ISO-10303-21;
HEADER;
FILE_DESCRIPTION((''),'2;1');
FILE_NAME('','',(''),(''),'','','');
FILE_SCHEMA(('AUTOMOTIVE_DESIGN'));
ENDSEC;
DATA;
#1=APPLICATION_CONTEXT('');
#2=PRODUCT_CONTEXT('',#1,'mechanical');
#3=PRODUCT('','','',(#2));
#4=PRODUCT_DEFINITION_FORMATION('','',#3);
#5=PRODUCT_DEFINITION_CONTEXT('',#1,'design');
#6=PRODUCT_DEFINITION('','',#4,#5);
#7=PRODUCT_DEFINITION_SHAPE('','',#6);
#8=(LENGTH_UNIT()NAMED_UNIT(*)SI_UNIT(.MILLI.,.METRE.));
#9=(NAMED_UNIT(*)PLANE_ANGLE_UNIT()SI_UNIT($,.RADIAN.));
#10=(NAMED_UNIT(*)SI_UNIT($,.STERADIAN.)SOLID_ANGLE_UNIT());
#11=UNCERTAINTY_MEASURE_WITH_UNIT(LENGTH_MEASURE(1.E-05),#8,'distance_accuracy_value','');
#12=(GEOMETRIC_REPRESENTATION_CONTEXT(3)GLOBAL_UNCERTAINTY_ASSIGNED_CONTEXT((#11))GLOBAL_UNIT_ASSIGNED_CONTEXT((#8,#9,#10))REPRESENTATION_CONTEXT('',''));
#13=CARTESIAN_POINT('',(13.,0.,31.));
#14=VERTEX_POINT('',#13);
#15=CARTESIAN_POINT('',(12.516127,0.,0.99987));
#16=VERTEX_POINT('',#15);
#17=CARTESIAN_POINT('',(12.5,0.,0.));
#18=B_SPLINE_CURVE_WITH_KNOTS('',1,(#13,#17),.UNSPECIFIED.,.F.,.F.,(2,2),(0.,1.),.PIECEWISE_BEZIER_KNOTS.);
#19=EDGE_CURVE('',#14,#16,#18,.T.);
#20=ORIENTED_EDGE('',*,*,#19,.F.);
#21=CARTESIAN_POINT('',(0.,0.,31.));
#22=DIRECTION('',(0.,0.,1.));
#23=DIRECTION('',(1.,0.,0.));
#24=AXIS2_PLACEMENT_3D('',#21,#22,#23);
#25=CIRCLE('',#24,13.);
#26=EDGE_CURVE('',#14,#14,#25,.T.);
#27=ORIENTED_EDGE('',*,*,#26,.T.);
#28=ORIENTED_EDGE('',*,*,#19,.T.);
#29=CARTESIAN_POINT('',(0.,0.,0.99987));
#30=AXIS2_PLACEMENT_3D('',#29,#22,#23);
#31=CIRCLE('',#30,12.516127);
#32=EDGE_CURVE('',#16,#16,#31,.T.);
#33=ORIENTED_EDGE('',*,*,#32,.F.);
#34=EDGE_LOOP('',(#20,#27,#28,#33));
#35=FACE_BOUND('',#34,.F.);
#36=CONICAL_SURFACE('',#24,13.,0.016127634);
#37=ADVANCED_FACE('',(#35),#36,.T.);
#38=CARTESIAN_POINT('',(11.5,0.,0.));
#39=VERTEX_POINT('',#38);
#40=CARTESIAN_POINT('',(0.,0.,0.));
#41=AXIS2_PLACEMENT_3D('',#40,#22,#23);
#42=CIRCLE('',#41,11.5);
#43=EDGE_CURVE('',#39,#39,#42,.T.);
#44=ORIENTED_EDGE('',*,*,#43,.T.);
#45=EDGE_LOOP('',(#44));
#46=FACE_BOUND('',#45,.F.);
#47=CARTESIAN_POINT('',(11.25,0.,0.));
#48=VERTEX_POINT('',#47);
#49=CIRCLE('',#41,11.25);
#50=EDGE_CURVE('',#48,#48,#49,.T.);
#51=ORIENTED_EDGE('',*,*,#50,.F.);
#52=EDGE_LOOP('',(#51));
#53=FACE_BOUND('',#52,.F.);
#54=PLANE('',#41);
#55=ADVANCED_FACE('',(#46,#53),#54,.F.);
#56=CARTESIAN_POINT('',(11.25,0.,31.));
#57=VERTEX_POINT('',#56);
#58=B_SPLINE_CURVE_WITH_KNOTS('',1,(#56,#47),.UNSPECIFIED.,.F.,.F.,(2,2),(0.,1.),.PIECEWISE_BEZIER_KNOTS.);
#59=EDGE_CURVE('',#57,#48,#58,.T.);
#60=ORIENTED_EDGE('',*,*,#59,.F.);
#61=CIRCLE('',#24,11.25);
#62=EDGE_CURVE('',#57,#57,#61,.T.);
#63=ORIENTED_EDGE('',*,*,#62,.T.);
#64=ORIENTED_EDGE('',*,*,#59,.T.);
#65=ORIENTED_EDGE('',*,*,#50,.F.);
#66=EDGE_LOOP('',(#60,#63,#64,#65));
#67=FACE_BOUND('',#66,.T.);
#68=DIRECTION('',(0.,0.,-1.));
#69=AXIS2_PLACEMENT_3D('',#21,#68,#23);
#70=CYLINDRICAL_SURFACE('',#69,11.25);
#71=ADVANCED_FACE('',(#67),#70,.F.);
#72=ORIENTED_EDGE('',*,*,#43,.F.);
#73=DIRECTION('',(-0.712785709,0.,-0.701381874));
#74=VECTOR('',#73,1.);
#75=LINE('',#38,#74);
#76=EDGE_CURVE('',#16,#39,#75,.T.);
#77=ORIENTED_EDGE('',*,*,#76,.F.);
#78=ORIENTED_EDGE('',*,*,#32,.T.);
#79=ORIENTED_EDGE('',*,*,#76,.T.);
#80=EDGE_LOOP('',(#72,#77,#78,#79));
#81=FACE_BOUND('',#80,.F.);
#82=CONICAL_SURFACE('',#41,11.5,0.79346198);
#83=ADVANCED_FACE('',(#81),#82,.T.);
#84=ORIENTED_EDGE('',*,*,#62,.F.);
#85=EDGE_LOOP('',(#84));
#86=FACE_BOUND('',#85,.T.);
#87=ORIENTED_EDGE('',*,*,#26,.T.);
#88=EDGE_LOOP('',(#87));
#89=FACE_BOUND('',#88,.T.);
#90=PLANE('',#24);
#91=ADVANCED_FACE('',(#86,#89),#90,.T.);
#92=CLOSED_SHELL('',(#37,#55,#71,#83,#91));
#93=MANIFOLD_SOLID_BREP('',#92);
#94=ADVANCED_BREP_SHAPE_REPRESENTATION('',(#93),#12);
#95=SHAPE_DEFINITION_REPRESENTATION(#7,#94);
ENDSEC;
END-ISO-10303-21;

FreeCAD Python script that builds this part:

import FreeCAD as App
import Part
import Sketcher
from FreeCAD import Vector


def edges_at(feature, points):
    """Names of the edges that pass closest to the given points."""
    edges = feature.Shape.Edges
    near = lambda p: min(range(len(edges)), key=lambda i: edges[i].distToShape(Part.Vertex(*p))[0])
    return sorted({f"Edge{near(p) + 1}" for p in points})

doc = App.newDocument("Part")
params = doc.addObject("Spreadsheet::Sheet", "Params")
for row, (alias, value) in enumerate([
    ("sketch1_diameter", "26 mm"),
    ("sketch2_diameter", "25 mm"),
    ("sketch3_diameter", "22.5 mm"),
    ("sketch4_diameter", "22.5 mm"),
    ("chamfer_size", "1 mm"),
], start=1):
    params.set(f"A{row}", alias)
    params.set(f"B{row}", "=" + value)
    params.setAlias(f"B{row}", alias)

body = doc.addObject("PartDesign::Body", "Body")

# Sketch on XY plane
sketch1 = doc.addObject("Sketcher::SketchObject", "Sketch")
body.addObject(sketch1)
sketch1.AttachmentSupport = (doc.XY_Plane, [""])
sketch1.MapMode = "FlatFace"
sketch1.AttachmentOffset = App.Placement(Vector(0, 0, 31), App.Rotation())
sketch1.addGeometry(Part.Circle(Vector(0, 0, 0), Vector(0, 0, 1), 13), False)
sketch1.addConstraint([
    Sketcher.Constraint("Coincident", 0, 3, -1, 1),
    Sketcher.Constraint("Diameter", 0, 26.0),
])
sketch1.setExpression("Constraints[1]", "Params.sketch1_diameter")

# Sketch on XY plane
sketch2 = doc.addObject("Sketcher::SketchObject", "Sketch001")
body.addObject(sketch2)
sketch2.AttachmentSupport = (doc.XY_Plane, [""])
sketch2.MapMode = "FlatFace"
sketch2.addGeometry(Part.Circle(Vector(0, 0, 0), Vector(0, 0, 1), 12), False)
sketch2.addConstraint([
    Sketcher.Constraint("Coincident", 0, 3, -1, 1),
    Sketcher.Constraint("Diameter", 0, 25.0),
])
sketch2.setExpression("Constraints[1]", "Params.sketch2_diameter")

additiveloft = doc.addObject("PartDesign::AdditiveLoft", "AdditiveLoft")
body.addObject(additiveloft)
additiveloft.Profile = sketch1
additiveloft.Sections = [sketch2]

# Sketch on XY plane
sketch3 = doc.addObject("Sketcher::SketchObject", "Sketch002")
body.addObject(sketch3)
sketch3.AttachmentSupport = (doc.XY_Plane, [""])
sketch3.MapMode = "FlatFace"
sketch3.AttachmentOffset = App.Placement(Vector(0, 0, 31), App.Rotation())
sketch3.addGeometry(Part.Circle(Vector(0, 0, 0), Vector(0, 0, 1), 11), False)
sketch3.addConstraint([
    Sketcher.Constraint("Coincident", 0, 3, -1, 1),
    Sketcher.Constraint("Diameter", 0, 22.5),
])
sketch3.setExpression("Constraints[1]", "Params.sketch3_diameter")

# Sketch on XY plane
sketch4 = doc.addObject("Sketcher::SketchObject", "Sketch003")
body.addObject(sketch4)
sketch4.AttachmentSupport = (doc.XY_Plane, [""])
sketch4.MapMode = "FlatFace"
sketch4.addGeometry(Part.Circle(Vector(0, 0, 0), Vector(0, 0, 1), 11), False)
sketch4.addConstraint([
    Sketcher.Constraint("Coincident", 0, 3, -1, 1),
    Sketcher.Constraint("Diameter", 0, 22.5),
])
sketch4.setExpression("Constraints[1]", "Params.sketch4_diameter")

subtractiveloft = doc.addObject("PartDesign::SubtractiveLoft", "SubtractiveLoft")
body.addObject(subtractiveloft)
subtractiveloft.Profile = sketch3
subtractiveloft.Sections = [sketch4]
doc.recompute()

chamfer = doc.addObject("PartDesign::Chamfer", "Chamfer")
body.addObject(chamfer)
chamfer.Base = (subtractiveloft, edges_at(subtractiveloft, [(-12.5, 0, 0)]))
chamfer.setExpression("Size", "Params.chamfer_size")

doc.recompute()
